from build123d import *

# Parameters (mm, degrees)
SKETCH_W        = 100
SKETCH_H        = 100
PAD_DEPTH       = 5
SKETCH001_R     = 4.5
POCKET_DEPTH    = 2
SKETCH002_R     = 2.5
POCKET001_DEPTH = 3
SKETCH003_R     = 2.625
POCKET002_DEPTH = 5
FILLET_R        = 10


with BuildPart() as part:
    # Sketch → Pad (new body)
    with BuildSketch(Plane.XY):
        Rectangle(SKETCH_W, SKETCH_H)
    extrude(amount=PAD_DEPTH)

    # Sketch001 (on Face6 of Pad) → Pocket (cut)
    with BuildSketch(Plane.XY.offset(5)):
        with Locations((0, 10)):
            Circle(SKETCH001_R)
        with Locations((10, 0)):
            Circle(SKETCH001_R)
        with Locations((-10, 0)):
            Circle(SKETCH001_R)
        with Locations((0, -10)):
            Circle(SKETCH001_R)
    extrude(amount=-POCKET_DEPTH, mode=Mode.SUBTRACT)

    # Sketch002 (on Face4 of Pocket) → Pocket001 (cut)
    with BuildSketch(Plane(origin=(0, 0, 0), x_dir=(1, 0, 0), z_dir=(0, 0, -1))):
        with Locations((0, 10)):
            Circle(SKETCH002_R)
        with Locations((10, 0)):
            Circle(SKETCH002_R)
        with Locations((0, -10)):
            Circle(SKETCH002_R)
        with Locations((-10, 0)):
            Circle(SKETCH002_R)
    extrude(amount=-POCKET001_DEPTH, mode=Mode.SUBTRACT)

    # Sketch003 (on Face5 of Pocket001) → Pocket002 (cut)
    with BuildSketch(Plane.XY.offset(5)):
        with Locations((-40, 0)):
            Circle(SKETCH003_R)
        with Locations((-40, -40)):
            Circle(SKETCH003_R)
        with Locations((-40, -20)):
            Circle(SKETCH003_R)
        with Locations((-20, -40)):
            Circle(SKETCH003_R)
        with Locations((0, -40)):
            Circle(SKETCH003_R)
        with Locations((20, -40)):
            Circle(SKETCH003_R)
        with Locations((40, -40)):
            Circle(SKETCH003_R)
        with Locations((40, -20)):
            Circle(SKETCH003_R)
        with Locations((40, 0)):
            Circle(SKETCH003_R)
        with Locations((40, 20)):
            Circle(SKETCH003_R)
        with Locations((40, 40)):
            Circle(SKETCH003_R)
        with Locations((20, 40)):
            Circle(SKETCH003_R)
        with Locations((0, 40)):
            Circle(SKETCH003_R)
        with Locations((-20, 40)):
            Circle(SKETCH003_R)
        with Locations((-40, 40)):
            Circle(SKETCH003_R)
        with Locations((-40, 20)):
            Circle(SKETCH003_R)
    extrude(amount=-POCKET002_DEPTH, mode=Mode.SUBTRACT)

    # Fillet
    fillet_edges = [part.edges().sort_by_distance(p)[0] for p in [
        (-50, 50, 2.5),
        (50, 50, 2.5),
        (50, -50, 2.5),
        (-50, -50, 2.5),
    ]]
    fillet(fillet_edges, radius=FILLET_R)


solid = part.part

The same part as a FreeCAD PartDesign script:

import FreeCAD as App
import Part
import Sketcher
from FreeCAD import Vector


def edges_at(feature, points):
    """Names of the edges that pass closest to the given points."""
    edges = feature.Shape.Edges
    near = lambda p: min(range(len(edges)), key=lambda i: edges[i].distToShape(Part.Vertex(*p))[0])
    return sorted({f"Edge{near(p) + 1}" for p in points})

doc = App.newDocument("Part")
body = doc.addObject("PartDesign::Body", "Body")

# Sketch on XY plane
sketch1 = body.newObject("Sketcher::SketchObject", "Sketch")
sketch1.AttachmentSupport = (doc.getObject("XY_Plane"), [""])
sketch1.MapMode = "FlatFace"
sketch1.addGeometry([
    Part.LineSegment(Vector(-50, 50, 0), Vector(-50, -50, 0)),
    Part.LineSegment(Vector(-50, -50, 0), Vector(50, -50, 0)),
    Part.LineSegment(Vector(50, -50, 0), Vector(50, 50, 0)),
    Part.LineSegment(Vector(50, 50, 0), Vector(-50, 50, 0)),
], False)
sketch1.addConstraint([
    Sketcher.Constraint("Coincident", 0, 2, 1, 1),
    Sketcher.Constraint("Coincident", 1, 2, 2, 1),
    Sketcher.Constraint("Coincident", 2, 2, 3, 1),
    Sketcher.Constraint("Coincident", 3, 2, 0, 1),
    Sketcher.Constraint("Vertical", 0),
    Sketcher.Constraint("Horizontal", 1),
    Sketcher.Constraint("Vertical", 2),
    Sketcher.Constraint("Horizontal", 3),
    Sketcher.Constraint("Symmetric", 0, 2, 2, 2, -1, 1),
    Sketcher.Constraint("Equal", 3, 0),
    Sketcher.Constraint("DistanceX", 1, 1, 1, 2, 100.0),
])
pad1 = body.newObject("PartDesign::Pad", "Pad")
pad1.Profile = sketch1
pad1.Length = 5

# Sketch on XY plane
sketch2 = body.newObject("Sketcher::SketchObject", "Sketch001")
sketch2.AttachmentSupport = (doc.getObject("XY_Plane"), [""])
sketch2.MapMode = "FlatFace"
sketch2.AttachmentOffset = App.Placement(Vector(0, 0, 5), App.Rotation())
sketch2.addGeometry([
    Part.Circle(Vector(0, 10, 0), Vector(0, 0, 1), 4.5),
    Part.Circle(Vector(10, 0, 0), Vector(0, 0, 1), 4.5),
    Part.Circle(Vector(-10, 0, 0), Vector(0, 0, 1), 4.5),
    Part.Circle(Vector(0, -10, 0), Vector(0, 0, 1), 4.5),
], False)
sketch2.addConstraint([
    Sketcher.Constraint("Equal", 0, 1),
    Sketcher.Constraint("Equal", 1, 2),
    Sketcher.Constraint("Equal", 2, 3),
    Sketcher.Constraint("Symmetric", 1, 3, 2, 3, -1, 1),
    Sketcher.Constraint("Symmetric", 0, 3, 3, 3, -1, 1),
    Sketcher.Constraint("PointOnObject", 0, 3, -2),
    Sketcher.Constraint("PointOnObject", 1, 3, -1),
    Sketcher.Constraint("Diameter", 0, 9.0),
    Sketcher.Constraint("DistanceY", -1, 1, 0, 3, 10.0),
    Sketcher.Constraint("DistanceX", -1, 1, 1, 3, 10.0),
])
pocket1 = body.newObject("PartDesign::Pocket", "Pocket")
pocket1.Profile = sketch2
pocket1.Length = 2

# Sketch on XY plane
sketch3 = body.newObject("Sketcher::SketchObject", "Sketch002")
sketch3.AttachmentSupport = (doc.getObject("XY_Plane"), [""])
sketch3.MapMode = "FlatFace"
sketch3.addGeometry([
    Part.Circle(Vector(0, -10, 0), Vector(0, 0, 1), 2.5),
    Part.Circle(Vector(10, 0, 0), Vector(0, 0, 1), 2.5),
    Part.Circle(Vector(0, 10, 0), Vector(0, 0, 1), 2.5),
    Part.Circle(Vector(-10, 0, 0), Vector(0, 0, 1), 2.5),
], False)
sketch3.addConstraint([
    Sketcher.Constraint("Equal", 0, 1),
    Sketcher.Constraint("Equal", 1, 2),
    Sketcher.Constraint("Equal", 2, 3),
    Sketcher.Constraint("Symmetric", 0, 3, 2, 3, -1, 1),
    Sketcher.Constraint("Symmetric", 1, 3, 3, 3, -1, 1),
    Sketcher.Constraint("PointOnObject", 0, 3, -2),
    Sketcher.Constraint("PointOnObject", 1, 3, -1),
    Sketcher.Constraint("Diameter", 0, 5.0),
    Sketcher.Constraint("DistanceY", 0, 3, -1, 1, 10.0),
    Sketcher.Constraint("DistanceX", -1, 1, 1, 3, 10.0),
])
pocket2 = body.newObject("PartDesign::Pocket", "Pocket001")
pocket2.Profile = sketch3
pocket2.Length = 3
pocket2.Reversed = True

# Sketch on XY plane
sketch4 = body.newObject("Sketcher::SketchObject", "Sketch003")
sketch4.AttachmentSupport = (doc.getObject("XY_Plane"), [""])
sketch4.MapMode = "FlatFace"
sketch4.AttachmentOffset = App.Placement(Vector(0, 0, 5), App.Rotation())
sketch4.addGeometry([
    Part.Circle(Vector(-40, 0, 0), Vector(0, 0, 1), 2.6),  # 0
    Part.Circle(Vector(-40, -40, 0), Vector(0, 0, 1), 2.6),  # 1
    Part.Circle(Vector(-40, -20, 0), Vector(0, 0, 1), 2.6),  # 2
    Part.Circle(Vector(-20, -40, 0), Vector(0, 0, 1), 2.6),  # 3
    Part.Circle(Vector(0, -40, 0), Vector(0, 0, 1), 2.6),  # 4
    Part.Circle(Vector(20, -40, 0), Vector(0, 0, 1), 2.6),  # 5
    Part.Circle(Vector(40, -40, 0), Vector(0, 0, 1), 2.6),  # 6
    Part.Circle(Vector(40, -20, 0), Vector(0, 0, 1), 2.6),  # 7
    Part.Circle(Vector(40, 0, 0), Vector(0, 0, 1), 2.6),  # 8
    Part.Circle(Vector(40, 20, 0), Vector(0, 0, 1), 2.6),  # 9
    Part.Circle(Vector(40, 40, 0), Vector(0, 0, 1), 2.6),  # 10
    Part.Circle(Vector(20, 40, 0), Vector(0, 0, 1), 2.6),  # 11
    Part.Circle(Vector(0, 40, 0), Vector(0, 0, 1), 2.6),  # 12
    Part.Circle(Vector(-20, 40, 0), Vector(0, 0, 1), 2.6),  # 13
    Part.Circle(Vector(-40, 40, 0), Vector(0, 0, 1), 2.6),  # 14
    Part.Circle(Vector(-40, 20, 0), Vector(0, 0, 1), 2.6),  # 15
], False)
sketch4.addConstraint([
    Sketcher.Constraint("Equal", 0, 1),
    Sketcher.Constraint("Equal", 1, 2),
    Sketcher.Constraint("Equal", 2, 3),
    Sketcher.Constraint("Equal", 3, 4),
    Sketcher.Constraint("Equal", 4, 5),
    Sketcher.Constraint("Equal", 5, 6),
    Sketcher.Constraint("Equal", 6, 7),
    Sketcher.Constraint("Equal", 7, 8),
    Sketcher.Constraint("Equal", 8, 9),
    Sketcher.Constraint("Equal", 9, 10),
    Sketcher.Constraint("Equal", 10, 11),
    Sketcher.Constraint("Equal", 11, 12),
    Sketcher.Constraint("Equal", 12, 13),
    Sketcher.Constraint("Equal", 13, 14),
    Sketcher.Constraint("Equal", 14, 15),
    Sketcher.Constraint("Symmetric", 0, 3, 8, 3, -1, 1),
    Sketcher.Constraint("Symmetric", 2, 3, 9, 3, -1, 1),
    Sketcher.Constraint("Symmetric", 1, 3, 10, 3, -1, 1),
    Sketcher.Constraint("Symmetric", 3, 3, 11, 3, -1, 1),
    Sketcher.Constraint("Symmetric", 4, 3, 12, 3, -1, 1),
    Sketcher.Constraint("Symmetric", 5, 3, 13, 3, -1, 1),
    Sketcher.Constraint("Symmetric", 6, 3, 14, 3, -1, 1),
    Sketcher.Constraint("Symmetric", 7, 3, 15, 3, -1, 1),
    Sketcher.Constraint("Symmetric", 3, 3, 5, 3, -2),
    Sketcher.Constraint("Symmetric", 1, 3, 6, 3, -2),
    Sketcher.Constraint("Symmetric", 2, 3, 7, 3, -2),
    Sketcher.Constraint("PointOnObject", 0, 3, -1),
    Sketcher.Constraint("PointOnObject", 4, 3, -2),
    Sketcher.Constraint("Horizontal", 1, 3, 3, 3),
    Sketcher.Constraint("Horizontal", 3, 3, 4, 3),
    Sketcher.Constraint("Vertical", 0, 3, 1, 3),
    Sketcher.Constraint("Vertical", 1, 3, 2, 3),
    Sketcher.Constraint("Diameter", 0, 5.25),
    Sketcher.Constraint("DistanceX", 0, 3, -1, 1, 40.0),
    Sketcher.Constraint("DistanceY", 1, 3, -1, 1, 40.0),
    Sketcher.Constraint("DistanceY", 2, 3, -1, 1, 20.0),
    Sketcher.Constraint("DistanceX", 3, 3, -1, 1, 20.0),
])
pocket3 = body.newObject("PartDesign::Pocket", "Pocket002")
pocket3.Profile = sketch4
pocket3.Length = 5
doc.recompute()

fillet = body.newObject("PartDesign::Fillet", "Fillet")
fillet.Base = (pocket3, edges_at(pocket3, [
    (-50, 50, 2.5),
    (50, 50, 2.5),
    (50, -50, 2.5),
    (-50, -50, 2.5),
]))
fillet.Radius = 10

doc.recompute()
